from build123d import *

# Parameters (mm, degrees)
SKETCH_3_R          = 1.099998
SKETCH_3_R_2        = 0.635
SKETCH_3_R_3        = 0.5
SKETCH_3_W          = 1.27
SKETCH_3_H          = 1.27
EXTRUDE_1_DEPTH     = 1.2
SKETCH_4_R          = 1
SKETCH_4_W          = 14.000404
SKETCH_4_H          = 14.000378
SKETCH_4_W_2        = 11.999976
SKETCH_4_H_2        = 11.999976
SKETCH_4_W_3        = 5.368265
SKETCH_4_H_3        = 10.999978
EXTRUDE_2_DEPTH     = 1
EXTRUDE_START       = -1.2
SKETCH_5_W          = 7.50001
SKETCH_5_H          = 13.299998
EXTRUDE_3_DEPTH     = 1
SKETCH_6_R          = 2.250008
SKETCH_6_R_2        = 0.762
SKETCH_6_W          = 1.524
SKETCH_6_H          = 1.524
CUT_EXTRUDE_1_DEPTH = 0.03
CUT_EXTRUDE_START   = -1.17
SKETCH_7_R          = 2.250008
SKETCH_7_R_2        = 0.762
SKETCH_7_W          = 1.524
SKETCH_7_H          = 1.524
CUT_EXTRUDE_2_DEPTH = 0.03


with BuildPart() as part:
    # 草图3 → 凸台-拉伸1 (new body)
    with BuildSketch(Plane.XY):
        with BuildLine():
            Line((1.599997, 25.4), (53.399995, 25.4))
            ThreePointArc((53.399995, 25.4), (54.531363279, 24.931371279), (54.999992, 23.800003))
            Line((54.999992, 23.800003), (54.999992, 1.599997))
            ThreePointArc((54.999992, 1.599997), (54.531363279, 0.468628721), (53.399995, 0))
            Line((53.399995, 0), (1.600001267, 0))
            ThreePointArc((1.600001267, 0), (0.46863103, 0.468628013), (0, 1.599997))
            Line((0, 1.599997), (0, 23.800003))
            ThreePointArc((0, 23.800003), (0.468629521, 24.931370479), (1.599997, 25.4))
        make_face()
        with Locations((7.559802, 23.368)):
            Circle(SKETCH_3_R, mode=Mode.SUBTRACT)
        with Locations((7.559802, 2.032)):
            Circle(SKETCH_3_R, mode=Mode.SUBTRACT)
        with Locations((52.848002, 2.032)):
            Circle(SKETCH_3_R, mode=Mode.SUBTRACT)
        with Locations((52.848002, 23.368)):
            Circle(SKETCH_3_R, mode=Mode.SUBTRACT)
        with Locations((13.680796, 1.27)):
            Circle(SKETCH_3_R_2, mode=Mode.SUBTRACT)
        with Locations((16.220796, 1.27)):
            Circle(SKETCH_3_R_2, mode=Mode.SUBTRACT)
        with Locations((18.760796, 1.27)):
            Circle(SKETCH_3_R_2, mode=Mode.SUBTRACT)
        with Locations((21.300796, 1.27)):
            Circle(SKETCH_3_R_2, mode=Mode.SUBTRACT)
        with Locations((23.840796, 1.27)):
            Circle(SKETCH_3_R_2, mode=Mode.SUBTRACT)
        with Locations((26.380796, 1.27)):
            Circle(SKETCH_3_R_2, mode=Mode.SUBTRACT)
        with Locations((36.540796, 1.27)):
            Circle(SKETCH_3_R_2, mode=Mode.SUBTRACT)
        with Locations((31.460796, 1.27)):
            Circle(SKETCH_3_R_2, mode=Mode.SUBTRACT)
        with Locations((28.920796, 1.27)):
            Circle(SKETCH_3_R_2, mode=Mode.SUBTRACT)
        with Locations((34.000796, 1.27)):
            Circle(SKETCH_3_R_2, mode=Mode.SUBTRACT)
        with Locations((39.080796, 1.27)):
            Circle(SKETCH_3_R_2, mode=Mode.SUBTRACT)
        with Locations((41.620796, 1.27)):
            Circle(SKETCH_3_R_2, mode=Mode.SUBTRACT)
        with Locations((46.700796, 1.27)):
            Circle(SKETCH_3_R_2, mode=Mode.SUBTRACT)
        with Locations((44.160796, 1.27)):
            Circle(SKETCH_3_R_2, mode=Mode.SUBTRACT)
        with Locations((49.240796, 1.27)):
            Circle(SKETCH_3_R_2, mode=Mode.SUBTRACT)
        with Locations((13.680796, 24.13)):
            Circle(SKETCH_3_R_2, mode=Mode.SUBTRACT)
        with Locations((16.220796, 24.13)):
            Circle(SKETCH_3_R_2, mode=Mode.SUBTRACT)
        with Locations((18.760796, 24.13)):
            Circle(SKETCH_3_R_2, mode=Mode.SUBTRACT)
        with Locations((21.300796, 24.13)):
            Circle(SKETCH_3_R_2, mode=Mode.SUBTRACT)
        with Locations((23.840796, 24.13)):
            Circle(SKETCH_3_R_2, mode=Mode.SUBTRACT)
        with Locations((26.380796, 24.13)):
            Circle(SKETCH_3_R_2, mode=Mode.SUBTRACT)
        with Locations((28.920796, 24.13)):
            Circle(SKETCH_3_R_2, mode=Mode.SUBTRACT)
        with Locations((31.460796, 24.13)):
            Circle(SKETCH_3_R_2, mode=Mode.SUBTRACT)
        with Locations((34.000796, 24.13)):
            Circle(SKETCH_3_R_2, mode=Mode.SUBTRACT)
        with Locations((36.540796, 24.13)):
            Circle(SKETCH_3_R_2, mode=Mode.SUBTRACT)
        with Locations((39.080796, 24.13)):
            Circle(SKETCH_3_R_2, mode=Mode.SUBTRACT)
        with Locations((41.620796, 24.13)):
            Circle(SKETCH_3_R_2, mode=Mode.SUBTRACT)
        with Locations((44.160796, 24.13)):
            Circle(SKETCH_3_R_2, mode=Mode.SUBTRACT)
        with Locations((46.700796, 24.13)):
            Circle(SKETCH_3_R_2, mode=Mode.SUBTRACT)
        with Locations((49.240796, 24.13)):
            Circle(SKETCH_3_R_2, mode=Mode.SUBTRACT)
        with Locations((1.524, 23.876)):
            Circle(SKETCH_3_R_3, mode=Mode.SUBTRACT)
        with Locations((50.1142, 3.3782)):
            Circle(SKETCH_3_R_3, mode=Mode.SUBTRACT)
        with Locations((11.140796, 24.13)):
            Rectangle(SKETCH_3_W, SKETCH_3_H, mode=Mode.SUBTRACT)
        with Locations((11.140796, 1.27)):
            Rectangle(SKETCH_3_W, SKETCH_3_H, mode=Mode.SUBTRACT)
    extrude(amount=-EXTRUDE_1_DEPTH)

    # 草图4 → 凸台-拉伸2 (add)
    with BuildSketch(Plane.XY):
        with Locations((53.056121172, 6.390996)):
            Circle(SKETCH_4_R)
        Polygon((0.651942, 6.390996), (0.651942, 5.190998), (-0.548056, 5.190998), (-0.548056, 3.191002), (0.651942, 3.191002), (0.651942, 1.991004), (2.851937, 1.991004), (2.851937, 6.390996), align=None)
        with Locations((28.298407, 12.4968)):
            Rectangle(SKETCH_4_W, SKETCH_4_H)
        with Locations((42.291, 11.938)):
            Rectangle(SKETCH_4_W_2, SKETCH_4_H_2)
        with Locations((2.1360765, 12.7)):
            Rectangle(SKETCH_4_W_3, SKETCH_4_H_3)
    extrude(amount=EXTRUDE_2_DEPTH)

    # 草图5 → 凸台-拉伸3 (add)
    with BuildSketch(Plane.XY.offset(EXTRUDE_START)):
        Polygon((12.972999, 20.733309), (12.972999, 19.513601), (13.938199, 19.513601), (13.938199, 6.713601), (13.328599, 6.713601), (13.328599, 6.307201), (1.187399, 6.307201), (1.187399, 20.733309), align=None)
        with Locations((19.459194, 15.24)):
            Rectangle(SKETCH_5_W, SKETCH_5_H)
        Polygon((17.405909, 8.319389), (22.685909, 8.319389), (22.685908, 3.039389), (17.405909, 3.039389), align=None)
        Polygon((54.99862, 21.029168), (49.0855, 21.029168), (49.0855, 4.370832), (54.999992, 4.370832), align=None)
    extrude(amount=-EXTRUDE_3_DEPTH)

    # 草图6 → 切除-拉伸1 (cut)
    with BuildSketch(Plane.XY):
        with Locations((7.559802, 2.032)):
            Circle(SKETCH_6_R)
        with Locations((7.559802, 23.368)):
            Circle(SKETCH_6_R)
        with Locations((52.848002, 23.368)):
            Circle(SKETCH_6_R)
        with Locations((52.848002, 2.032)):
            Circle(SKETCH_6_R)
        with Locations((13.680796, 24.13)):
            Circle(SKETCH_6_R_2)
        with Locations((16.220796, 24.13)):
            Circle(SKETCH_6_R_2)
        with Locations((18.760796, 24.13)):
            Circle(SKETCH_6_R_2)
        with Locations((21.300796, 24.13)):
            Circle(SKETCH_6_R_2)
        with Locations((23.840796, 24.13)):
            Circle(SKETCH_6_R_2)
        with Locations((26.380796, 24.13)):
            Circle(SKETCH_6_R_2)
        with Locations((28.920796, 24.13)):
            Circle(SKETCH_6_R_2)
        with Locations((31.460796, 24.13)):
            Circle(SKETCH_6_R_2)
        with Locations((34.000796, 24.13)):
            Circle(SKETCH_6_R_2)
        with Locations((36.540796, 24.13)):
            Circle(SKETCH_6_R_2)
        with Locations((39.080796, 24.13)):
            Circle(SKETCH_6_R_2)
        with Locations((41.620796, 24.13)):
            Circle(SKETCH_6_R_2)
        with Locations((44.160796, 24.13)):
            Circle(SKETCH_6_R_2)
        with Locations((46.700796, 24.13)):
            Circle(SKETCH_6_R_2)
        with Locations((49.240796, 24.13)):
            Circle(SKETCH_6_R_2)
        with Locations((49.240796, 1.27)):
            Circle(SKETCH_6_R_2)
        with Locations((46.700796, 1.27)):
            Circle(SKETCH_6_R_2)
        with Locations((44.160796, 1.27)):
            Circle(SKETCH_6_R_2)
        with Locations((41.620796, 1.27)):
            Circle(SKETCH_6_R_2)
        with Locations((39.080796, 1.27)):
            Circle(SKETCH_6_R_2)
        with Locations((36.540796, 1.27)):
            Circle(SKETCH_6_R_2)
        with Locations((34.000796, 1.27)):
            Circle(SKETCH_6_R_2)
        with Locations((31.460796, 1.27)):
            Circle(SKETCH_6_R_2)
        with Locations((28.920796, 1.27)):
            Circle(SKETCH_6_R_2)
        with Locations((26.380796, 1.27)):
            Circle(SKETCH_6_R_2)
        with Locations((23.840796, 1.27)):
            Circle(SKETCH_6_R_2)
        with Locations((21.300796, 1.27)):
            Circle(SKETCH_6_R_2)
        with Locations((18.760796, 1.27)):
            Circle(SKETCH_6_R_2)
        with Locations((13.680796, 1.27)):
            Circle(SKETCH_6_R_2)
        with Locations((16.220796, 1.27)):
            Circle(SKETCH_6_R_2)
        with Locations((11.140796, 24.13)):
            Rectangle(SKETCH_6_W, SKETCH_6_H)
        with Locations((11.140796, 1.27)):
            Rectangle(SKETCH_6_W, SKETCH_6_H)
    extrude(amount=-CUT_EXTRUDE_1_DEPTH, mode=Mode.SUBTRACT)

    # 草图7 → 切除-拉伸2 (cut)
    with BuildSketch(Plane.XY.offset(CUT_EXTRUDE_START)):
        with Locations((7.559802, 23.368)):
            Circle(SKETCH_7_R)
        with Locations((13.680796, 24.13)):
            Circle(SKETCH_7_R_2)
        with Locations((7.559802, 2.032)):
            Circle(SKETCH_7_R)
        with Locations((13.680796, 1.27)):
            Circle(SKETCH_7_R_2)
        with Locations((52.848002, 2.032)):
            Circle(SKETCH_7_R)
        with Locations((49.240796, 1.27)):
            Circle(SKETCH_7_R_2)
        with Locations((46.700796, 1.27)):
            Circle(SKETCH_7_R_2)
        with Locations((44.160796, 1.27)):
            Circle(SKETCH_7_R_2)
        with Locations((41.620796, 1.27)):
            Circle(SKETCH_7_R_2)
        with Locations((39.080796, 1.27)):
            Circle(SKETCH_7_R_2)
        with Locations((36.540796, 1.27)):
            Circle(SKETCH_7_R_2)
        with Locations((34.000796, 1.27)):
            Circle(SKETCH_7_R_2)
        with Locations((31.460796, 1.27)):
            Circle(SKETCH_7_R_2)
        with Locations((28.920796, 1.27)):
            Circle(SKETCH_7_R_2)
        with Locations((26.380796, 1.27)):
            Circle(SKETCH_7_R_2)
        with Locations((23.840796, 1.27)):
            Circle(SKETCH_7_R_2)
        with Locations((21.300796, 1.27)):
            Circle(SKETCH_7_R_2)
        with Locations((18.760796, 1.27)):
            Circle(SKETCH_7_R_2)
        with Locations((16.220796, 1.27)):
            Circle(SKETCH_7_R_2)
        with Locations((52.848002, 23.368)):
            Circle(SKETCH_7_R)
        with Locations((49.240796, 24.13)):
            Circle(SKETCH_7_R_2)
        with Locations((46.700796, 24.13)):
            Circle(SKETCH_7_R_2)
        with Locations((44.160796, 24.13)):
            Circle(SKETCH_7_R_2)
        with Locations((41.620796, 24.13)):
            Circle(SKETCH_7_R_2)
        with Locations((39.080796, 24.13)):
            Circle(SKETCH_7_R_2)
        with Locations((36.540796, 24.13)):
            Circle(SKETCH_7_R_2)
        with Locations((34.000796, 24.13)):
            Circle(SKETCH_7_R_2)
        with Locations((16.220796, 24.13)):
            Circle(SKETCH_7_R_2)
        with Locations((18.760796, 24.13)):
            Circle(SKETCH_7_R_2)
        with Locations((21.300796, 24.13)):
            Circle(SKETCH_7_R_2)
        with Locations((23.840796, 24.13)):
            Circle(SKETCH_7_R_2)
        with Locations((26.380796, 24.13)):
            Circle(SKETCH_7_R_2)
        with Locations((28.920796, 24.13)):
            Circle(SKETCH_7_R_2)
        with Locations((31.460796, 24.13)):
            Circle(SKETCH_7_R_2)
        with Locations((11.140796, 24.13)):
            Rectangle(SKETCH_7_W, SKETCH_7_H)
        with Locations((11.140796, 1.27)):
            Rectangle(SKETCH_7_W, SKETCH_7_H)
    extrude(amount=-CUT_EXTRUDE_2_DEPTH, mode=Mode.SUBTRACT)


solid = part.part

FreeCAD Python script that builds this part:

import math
import FreeCAD as App
import Part
import Sketcher

V = App.Vector
Q = App.Units.Quantity

doc = App.newDocument("Part")
body = doc.addObject("PartDesign::Body", "Body")

# Sketch on XY plane
sketch1 = body.newObject("Sketcher::SketchObject", "Sketch")
sketch1.AttachmentSupport = (doc.getObject("XY_Plane"), [""])
sketch1.MapMode = "FlatFace"
sketch1.addGeometry([
    Part.LineSegment(V(53.399995, 25.4, 0), V(1.599997, 25.4, 0)),  # 0
    Part.ArcOfCircle(Part.Circle(V(1.600001, 23.799999, 0), V(0, 0, 1), 1.600001), math.radians(90.000153), math.radians(179.999847)),  # 1
    Part.LineSegment(V(0, 23.800003, 0), V(0, 1.599997, 0)),  # 2
    Part.ArcOfCircle(Part.Circle(V(1.600001, 1.600001, 0), V(0, 0, 1), 1.600001), math.radians(-179.999847), math.radians(-90)),  # 3
    Part.LineSegment(V(1.600001, 0, 0), V(53.399995, 0, 0)),  # 4
    Part.ArcOfCircle(Part.Circle(V(53.399993, 1.599999, 0), V(0, 0, 1), 1.599999), math.radians(-89.999945), math.radians(-0.000055)),  # 5
    Part.LineSegment(V(54.999992, 1.599997, 0), V(54.999992, 23.800003, 0)),  # 6
    Part.ArcOfCircle(Part.Circle(V(53.399993, 23.800001, 0), V(0, 0, 1), 1.599999), math.radians(0.000055), math.radians(89.999945)),  # 7
    Part.Circle(V(52.848002, 2.032, 0), V(0, 0, 1), 1.099998),  # 8
    Part.Circle(V(49.240796, 1.27, 0), V(0, 0, 1), 0.635),  # 9
    Part.Circle(V(50.1142, 3.3782, 0), V(0, 0, 1), 0.5),  # 10
    Part.Circle(V(46.700796, 1.27, 0), V(0, 0, 1), 0.635),  # 11
    Part.Circle(V(44.160796, 1.27, 0), V(0, 0, 1), 0.635),  # 12
    Part.Circle(V(41.620796, 1.27, 0), V(0, 0, 1), 0.635),  # 13
    Part.Circle(V(39.080796, 1.27, 0), V(0, 0, 1), 0.635),  # 14
    Part.Circle(V(36.540796, 1.27, 0), V(0, 0, 1), 0.635),  # 15
    Part.Circle(V(34.000796, 1.27, 0), V(0, 0, 1), 0.635),  # 16
    Part.Circle(V(31.460796, 1.27, 0), V(0, 0, 1), 0.635),  # 17
    Part.Circle(V(28.920796, 1.27, 0), V(0, 0, 1), 0.635),  # 18
    Part.Circle(V(26.380796, 1.27, 0), V(0, 0, 1), 0.635),  # 19
    Part.Circle(V(23.840796, 1.27, 0), V(0, 0, 1), 0.635),  # 20
    Part.Circle(V(21.300796, 1.27, 0), V(0, 0, 1), 0.635),  # 21
    Part.Circle(V(18.760796, 1.27, 0), V(0, 0, 1), 0.635),  # 22
    Part.Circle(V(16.220796, 1.27, 0), V(0, 0, 1), 0.635),  # 23
    Part.Circle(V(13.680796, 1.27, 0), V(0, 0, 1), 0.635),  # 24
    Part.LineSegment(V(10.505796, 0.635, 0), V(10.505796, 1.905, 0)),  # 25
    Part.LineSegment(V(10.505796, 1.905, 0), V(11.775796, 1.905, 0)),  # 26
    Part.LineSegment(V(11.775796, 1.905, 0), V(11.775796, 0.635, 0)),  # 27
    Part.LineSegment(V(11.775796, 0.635, 0), V(10.505796, 0.635, 0)),  # 28
    Part.Circle(V(7.559802, 2.032, 0), V(0, 0, 1), 1.099998),  # 29
    Part.Circle(V(52.848002, 23.368, 0), V(0, 0, 1), 1.099998),  # 30
    Part.Circle(V(49.240796, 24.13, 0), V(0, 0, 1), 0.635),  # 31
    Part.Circle(V(46.700796, 24.13, 0), V(0, 0, 1), 0.635),  # 32
    Part.Circle(V(44.160796, 24.13, 0), V(0, 0, 1), 0.635),  # 33
    Part.Circle(V(41.620796, 24.13, 0), V(0, 0, 1), 0.635),  # 34
    Part.Circle(V(39.080796, 24.13, 0), V(0, 0, 1), 0.635),  # 35
    Part.Circle(V(36.540796, 24.13, 0), V(0, 0, 1), 0.635),  # 36
    Part.Circle(V(34.000796, 24.13, 0), V(0, 0, 1), 0.635),  # 37
    Part.Circle(V(31.460796, 24.13, 0), V(0, 0, 1), 0.635),  # 38
    Part.Circle(V(28.920796, 24.13, 0), V(0, 0, 1), 0.635),  # 39
    Part.Circle(V(26.380796, 24.13, 0), V(0, 0, 1), 0.635),  # 40
    Part.Circle(V(23.840796, 24.13, 0), V(0, 0, 1), 0.635),  # 41
    Part.Circle(V(21.300796, 24.13, 0), V(0, 0, 1), 0.635),  # 42
    Part.Circle(V(18.760796, 24.13, 0), V(0, 0, 1), 0.635),  # 43
    Part.Circle(V(16.220796, 24.13, 0), V(0, 0, 1), 0.635),  # 44
    Part.Circle(V(13.680796, 24.13, 0), V(0, 0, 1), 0.635),  # 45
    Part.LineSegment(V(10.505796, 23.495, 0), V(10.505796, 24.765, 0)),  # 46
    Part.LineSegment(V(10.505796, 24.765, 0), V(11.775796, 24.765, 0)),  # 47
    Part.LineSegment(V(11.775796, 24.765, 0), V(11.775796, 23.495, 0)),  # 48
    Part.LineSegment(V(11.775796, 23.495, 0), V(10.505796, 23.495, 0)),  # 49
    Part.Circle(V(7.559802, 23.368, 0), V(0, 0, 1), 1.099998),  # 50
    Part.Circle(V(1.524, 23.876, 0), V(0, 0, 1), 0.5),  # 51
], False)
sketch1.addConstraint([
    Sketcher.Constraint("Coincident", 0, 2, 1, 1),
    Sketcher.Constraint("Coincident", 1, 2, 2, 1),
    Sketcher.Constraint("Coincident", 2, 2, 3, 1),
    Sketcher.Constraint("Tangent", 3, 2, 4, 1),
    Sketcher.Constraint("Tangent", 4, 2, 5, 1),
    Sketcher.Constraint("Tangent", 5, 2, 6, 1),
    Sketcher.Constraint("Tangent", 6, 2, 7, 1),
    Sketcher.Constraint("Tangent", 7, 2, 0, 1),
    Sketcher.Constraint("Coincident", 25, 2, 26, 1),
    Sketcher.Constraint("Coincident", 26, 2, 27, 1),
    Sketcher.Constraint("Coincident", 27, 2, 28, 1),
    Sketcher.Constraint("Coincident", 28, 2, 25, 1),
    Sketcher.Constraint("Coincident", 46, 2, 47, 1),
    Sketcher.Constraint("Coincident", 47, 2, 48, 1),
    Sketcher.Constraint("Coincident", 48, 2, 49, 1),
    Sketcher.Constraint("Coincident", 49, 2, 46, 1),
    Sketcher.Constraint("Horizontal", 0),
    Sketcher.Constraint("Vertical", 2),
    Sketcher.Constraint("Horizontal", 4),
    Sketcher.Constraint("Vertical", 6),
    Sketcher.Constraint("Vertical", 25),
    Sketcher.Constraint("Horizontal", 26),
    Sketcher.Constraint("Vertical", 27),
    Sketcher.Constraint("Horizontal", 28),
    Sketcher.Constraint("Vertical", 46),
    Sketcher.Constraint("Horizontal", 47),
    Sketcher.Constraint("Vertical", 48),
    Sketcher.Constraint("Horizontal", 49),
    Sketcher.Constraint("Equal", 1, 3),
    Sketcher.Constraint("Equal", 5, 7),
    Sketcher.Constraint("Equal", 9, 11),
    Sketcher.Constraint("Equal", 11, 12),
    Sketcher.Constraint("Equal", 12, 13),
    Sketcher.Constraint("Equal", 13, 14),
    Sketcher.Constraint("Equal", 14, 15),
    Sketcher.Constraint("Equal", 15, 16),
    Sketcher.Constraint("Equal", 16, 17),
    Sketcher.Constraint("Equal", 17, 18),
    Sketcher.Constraint("Equal", 18, 19),
    Sketcher.Constraint("Equal", 19, 20),
    Sketcher.Constraint("Equal", 20, 21),
    Sketcher.Constraint("Equal", 21, 22),
    Sketcher.Constraint("Equal", 22, 23),
    Sketcher.Constraint("Equal", 23, 24),
    Sketcher.Constraint("Equal", 8, 29),
    Sketcher.Constraint("Equal", 29, 30),
    Sketcher.Constraint("Equal", 24, 31),
    Sketcher.Constraint("Equal", 31, 32),
    Sketcher.Constraint("Equal", 32, 33),
    Sketcher.Constraint("Equal", 33, 34),
    Sketcher.Constraint("Equal", 34, 35),
    Sketcher.Constraint("Equal", 35, 36),
    Sketcher.Constraint("Equal", 36, 37),
    Sketcher.Constraint("Equal", 37, 38),
    Sketcher.Constraint("Equal", 38, 39),
    Sketcher.Constraint("Equal", 39, 40),
    Sketcher.Constraint("Equal", 40, 41),
    Sketcher.Constraint("Equal", 41, 42),
    Sketcher.Constraint("Equal", 42, 43),
    Sketcher.Constraint("Equal", 43, 44),
    Sketcher.Constraint("Equal", 44, 45),
    Sketcher.Constraint("Equal", 30, 50),
    Sketcher.Constraint("Equal", 10, 51),
    Sketcher.Constraint("PointOnObject", 1, 2, -2),
    Sketcher.Constraint("PointOnObject", 3, 2, -1),
    Sketcher.Constraint("Horizontal", 9, 3, 11, 3),
    Sketcher.Constraint("Horizontal", 11, 3, 12, 3),
    Sketcher.Constraint("Horizontal", 12, 3, 13, 3),
    Sketcher.Constraint("Horizontal", 13, 3, 14, 3),
    Sketcher.Constraint("Horizontal", 14, 3, 15, 3),
    Sketcher.Constraint("Horizontal", 15, 3, 16, 3),
    Sketcher.Constraint("Horizontal", 16, 3, 17, 3),
    Sketcher.Constraint("Horizontal", 17, 3, 18, 3),
    Sketcher.Constraint("Horizontal", 18, 3, 19, 3),
    Sketcher.Constraint("Horizontal", 19, 3, 20, 3),
    Sketcher.Constraint("Horizontal", 20, 3, 21, 3),
    Sketcher.Constraint("Horizontal", 21, 3, 22, 3),
    Sketcher.Constraint("Horizontal", 22, 3, 23, 3),
    Sketcher.Constraint("Horizontal", 23, 3, 24, 3),
    Sketcher.Constraint("Horizontal", 8, 3, 29, 3),
    Sketcher.Constraint("Horizontal", 31, 3, 32, 3),
    Sketcher.Constraint("Horizontal", 32, 3, 33, 3),
    Sketcher.Constraint("Horizontal", 33, 3, 34, 3),
    Sketcher.Constraint("Horizontal", 34, 3, 35, 3),
    Sketcher.Constraint("Horizontal", 35, 3, 36, 3),
    Sketcher.Constraint("Horizontal", 36, 3, 37, 3),
    Sketcher.Constraint("Horizontal", 37, 3, 38, 3),
    Sketcher.Constraint("Horizontal", 38, 3, 39, 3),
    Sketcher.Constraint("Horizontal", 39, 3, 40, 3),
    Sketcher.Constraint("Horizontal", 40, 3, 41, 3),
    Sketcher.Constraint("Horizontal", 41, 3, 42, 3),
    Sketcher.Constraint("Horizontal", 42, 3, 43, 3),
    Sketcher.Constraint("Horizontal", 43, 3, 44, 3),
    Sketcher.Constraint("Horizontal", 44, 3, 45, 3),
    Sketcher.Constraint("Horizontal", 30, 3, 50, 3),
    Sketcher.Constraint("Horizontal", 7, 3, 1, 2),
    Sketcher.Constraint("Horizontal", 5, 3, 2, 2),
    Sketcher.Constraint("Vertical", 8, 3, 30, 3),
    Sketcher.Constraint("Vertical", 9, 3, 31, 3),
    Sketcher.Constraint("Vertical", 11, 3, 32, 3),
    Sketcher.Constraint("Vertical", 12, 3, 33, 3),
    Sketcher.Constraint("Vertical", 13, 3, 34, 3),
    Sketcher.Constraint("Vertical", 14, 3, 35, 3),
    Sketcher.Constraint("Vertical", 15, 3, 36, 3),
    Sketcher.Constraint("Vertical", 16, 3, 37, 3),
    Sketcher.Constraint("Vertical", 17, 3, 38, 3),
    Sketcher.Constraint("Vertical", 18, 3, 39, 3),
    Sketcher.Constraint("Vertical", 19, 3, 40, 3),
    Sketcher.Constraint("Vertical", 20, 3, 41, 3),
    Sketcher.Constraint("Vertical", 21, 3, 42, 3),
    Sketcher.Constraint("Vertical", 22, 3, 43, 3),
    Sketcher.Constraint("Vertical", 23, 3, 44, 3),
    Sketcher.Constraint("Vertical", 24, 3, 45, 3),
    Sketcher.Constraint("Vertical", 29, 3, 50, 3),
    Sketcher.Constraint("Vertical", 28, 2, 46, 2),
    Sketcher.Constraint("Vertical", 27, 2, 47, 2),
    Sketcher.Constraint("Equal", 49, 25),
    Sketcher.Constraint("Equal", 27, 46),
    Sketcher.Constraint("Diameter", 9, Q("0.05 in")),
    Sketcher.Constraint("DistanceY", -1, 1, 0, 2, Q("1 in")),
    Sketcher.Constraint("DistanceX", 26, 1, 26, 2, Q("0.05 in")),
    Sketcher.Constraint("DistanceX", 11, 3, 9, 3, Q("0.1 in")),
    Sketcher.Constraint("DistanceX", 12, 3, 11, 3, Q("0.1 in")),
    Sketcher.Constraint("DistanceX", 13, 3, 12, 3, Q("0.1 in")),
    Sketcher.Constraint("DistanceX", 14, 3, 13, 3, Q("0.1 in")),
    Sketcher.Constraint("DistanceX", 15, 3, 14, 3, Q("0.1 in")),
    Sketcher.Constraint("DistanceX", 16, 3, 15, 3, Q("0.1 in")),
    Sketcher.Constraint("DistanceX", 17, 3, 16, 3, Q("0.1 in")),
    Sketcher.Constraint("DistanceX", 18, 3, 17, 3, Q("0.1 in")),
    Sketcher.Constraint("DistanceX", 19, 3, 18, 3, Q("0.1 in")),
    Sketcher.Constraint("DistanceX", 20, 3, 19, 3, Q("0.1 in")),
    Sketcher.Constraint("DistanceX", 21, 3, 20, 3, Q("0.1 in")),
    Sketcher.Constraint("DistanceX", 22, 3, 21, 3, Q("0.1 in")),
    Sketcher.Constraint("DistanceX", 23, 3, 22, 3, Q("0.1 in")),
    Sketcher.Constraint("DistanceX", 24, 3, 23, 3, Q("0.1 in")),
    Sketcher.Constraint("DistanceY", 9, 3, 31, 3, Q("0.9 in")),
    Sketcher.Constraint("Diameter", 10, 1.0),
    Sketcher.Constraint("DistanceY", -1, 1, 8, 3, Q("0.08 in")),
    Sketcher.Constraint("DistanceY", -1, 1, 9, 3, Q("0.05 in")),
    Sketcher.Constraint("DistanceY", -1, 1, 30, 3, Q("0.92 in")),
    Sketcher.Constraint("DistanceX", -1, 1, 51, 3, Q("0.06 in")),
    Sketcher.Constraint("DistanceY", -1, 1, 51, 3, Q("0.94 in")),
    Sketcher.Constraint("Radius", 1, 1.600001),
    Sketcher.Constraint("Radius", 5, 1.599999),
    Sketcher.Constraint("DistanceX", -1, 1, 10, 3, Q("1.973 in")),
    Sketcher.Constraint("DistanceY", -1, 1, 10, 3, Q("0.133 in")),
    Sketcher.Constraint("DistanceY", -1, 1, 25, 2, Q("0.075 in")),
    Sketcher.Constraint("DistanceY", -1, 1, 46, 2, Q("0.975 in")),
    Sketcher.Constraint("DistanceX", 25, 2, 24, 3, Q("0.125 in")),
    Sketcher.Constraint("Diameter", 8, 2.199996),
    Sketcher.Constraint("DistanceX", 3, 3, 8, 3, 51.248001),
    Sketcher.Constraint("DistanceX", 3, 3, 29, 3, 5.959801),
    Sketcher.Constraint("DistanceX", 0, 2, 45, 3, 12.080799),
    Sketcher.Constraint("DistanceX", 9, 3, 4, 2, 4.159199),
    Sketcher.Constraint("DistanceX", 4, 1, 4, 2, 51.799994),
])
pad1 = body.newObject("PartDesign::Pad", "Pad")
pad1.Profile = sketch1
pad1.Length = 1.2
pad1.Reversed = True

# Sketch on XY plane
sketch2 = body.newObject("Sketcher::SketchObject", "Sketch001")
sketch2.AttachmentSupport = (doc.getObject("XY_Plane"), [""])
sketch2.MapMode = "FlatFace"
sketch2.addGeometry([
    Part.Circle(V(53.056121, 6.390996, 0), V(0, 0, 1), 1),  # 0
    Part.LineSegment(V(0.651942, 6.390996, 0), V(0.651942, 5.190998, 0)),  # 1
    Part.LineSegment(V(0.651942, 5.190998, 0), V(-0.548056, 5.190998, 0)),  # 2
    Part.LineSegment(V(-0.548056, 5.190998, 0), V(-0.548056, 3.191002, 0)),  # 3
    Part.LineSegment(V(-0.548056, 3.191002, 0), V(0.651942, 3.191002, 0)),  # 4
    Part.LineSegment(V(0.651942, 3.191002, 0), V(0.651942, 1.991004, 0)),  # 5
    Part.LineSegment(V(0.651942, 1.991004, 0), V(2.851937, 1.991004, 0)),  # 6
    Part.LineSegment(V(2.851937, 1.991004, 0), V(2.851937, 6.390996, 0)),  # 7
    Part.LineSegment(V(2.851937, 6.390996, 0), V(0.651942, 6.390996, 0)),  # 8
    Part.LineSegment(V(21.298205, 19.496989, 0), V(21.298205, 5.496611, 0)),  # 9
    Part.LineSegment(V(21.298205, 5.496611, 0), V(35.298609, 5.496611, 0)),  # 10
    Part.LineSegment(V(35.298609, 5.496611, 0), V(35.298609, 19.496989, 0)),  # 11
    Part.LineSegment(V(35.298609, 19.496989, 0), V(21.298205, 19.496989, 0)),  # 12
    Part.LineSegment(V(36.291012, 17.937988, 0), V(36.291012, 5.938012, 0)),  # 13
    Part.LineSegment(V(36.291012, 5.938012, 0), V(48.290988, 5.938012, 0)),  # 14
    Part.LineSegment(V(48.290988, 5.938012, 0), V(48.290988, 17.937988, 0)),  # 15
    Part.LineSegment(V(48.290988, 17.937988, 0), V(36.291012, 17.937988, 0)),  # 16
    Part.LineSegment(V(-0.548056, 18.199989, 0), V(-0.548056, 7.200011, 0)),  # 17
    Part.LineSegment(V(-0.548056, 7.200011, 0), V(4.820209, 7.200011, 0)),  # 18
    Part.LineSegment(V(4.820209, 7.200011, 0), V(4.820209, 18.199989, 0)),  # 19
    Part.LineSegment(V(4.820209, 18.199989, 0), V(-0.548056, 18.199989, 0)),  # 20
], False)
sketch2.addConstraint([
    Sketcher.Constraint("Coincident", 1, 2, 2, 1),
    Sketcher.Constraint("Coincident", 2, 2, 3, 1),
    Sketcher.Constraint("Coincident", 3, 2, 4, 1),
    Sketcher.Constraint("Coincident", 4, 2, 5, 1),
    Sketcher.Constraint("Coincident", 5, 2, 6, 1),
    Sketcher.Constraint("Coincident", 6, 2, 7, 1),
    Sketcher.Constraint("Coincident", 7, 2, 8, 1),
    Sketcher.Constraint("Coincident", 8, 2, 1, 1),
    Sketcher.Constraint("Coincident", 9, 2, 10, 1),
    Sketcher.Constraint("Coincident", 10, 2, 11, 1),
    Sketcher.Constraint("Coincident", 11, 2, 12, 1),
    Sketcher.Constraint("Coincident", 12, 2, 9, 1),
    Sketcher.Constraint("Coincident", 13, 2, 14, 1),
    Sketcher.Constraint("Coincident", 14, 2, 15, 1),
    Sketcher.Constraint("Coincident", 15, 2, 16, 1),
    Sketcher.Constraint("Coincident", 16, 2, 13, 1),
    Sketcher.Constraint("Coincident", 17, 2, 18, 1),
    Sketcher.Constraint("Coincident", 18, 2, 19, 1),
    Sketcher.Constraint("Coincident", 19, 2, 20, 1),
    Sketcher.Constraint("Coincident", 20, 2, 17, 1),
    Sketcher.Constraint("Vertical", 1),
    Sketcher.Constraint("Horizontal", 2),
    Sketcher.Constraint("Vertical", 3),
    Sketcher.Constraint("Horizontal", 4),
    Sketcher.Constraint("Vertical", 5),
    Sketcher.Constraint("Horizontal", 6),
    Sketcher.Constraint("Vertical", 7),
    Sketcher.Constraint("Horizontal", 8),
    Sketcher.Constraint("Vertical", 9),
    Sketcher.Constraint("Horizontal", 10),
    Sketcher.Constraint("Vertical", 11),
    Sketcher.Constraint("Horizontal", 12),
    Sketcher.Constraint("Vertical", 13),
    Sketcher.Constraint("Horizontal", 14),
    Sketcher.Constraint("Vertical", 15),
    Sketcher.Constraint("Horizontal", 16),
    Sketcher.Constraint("Vertical", 17),
    Sketcher.Constraint("Horizontal", 18),
    Sketcher.Constraint("Vertical", 19),
    Sketcher.Constraint("Horizontal", 20),
    Sketcher.Constraint("Horizontal", 0, 3, 7, 2),
    Sketcher.Constraint("Vertical", 1, 2, 4, 2),
    Sketcher.Constraint("Vertical", 3, 2, 17, 2),
    Sketcher.Constraint("Equal", 4, 1),
    Sketcher.Constraint("Equal", 1, 5),
    Sketcher.Constraint("Equal", 16, 13),
    Sketcher.Constraint("Diameter", 0, 2.0),
    Sketcher.Constraint("DistanceY", 1, 2, 1, 1, 1.199998),
    Sketcher.Constraint("DistanceY", 10, 2, 13, 2, 0.441401),
    Sketcher.Constraint("DistanceY", 15, 2, 11, 2, 1.559001),
    Sketcher.Constraint("DistanceX", 6, 1, 6, 2, 2.199995),
    Sketcher.Constraint("DistanceX", 10, 1, 10, 2, 14.000404),
    Sketcher.Constraint("DistanceX", 14, 1, 14, 2, 11.999976),
    Sketcher.Constraint("DistanceX", 18, 1, 18, 2, 5.368265),
    Sketcher.Constraint("DistanceY", 3, 2, 3, 1, 1.999996),
    Sketcher.Constraint("DistanceY", 17, 2, 17, 1, 10.999978),
    Sketcher.Constraint("DistanceX", -1, 1, 0, 3, 53.056121),
    Sketcher.Constraint("DistanceY", -1, 1, 9, 2, 5.496611),
    Sketcher.Constraint("DistanceX", -1, 1, 10, 2, 35.298609),
    Sketcher.Constraint("DistanceY", -1, 1, 17, 2, 7.200011),
    Sketcher.Constraint("DistanceX", -1, 1, 18, 2, 4.820209),
    Sketcher.Constraint("DistanceY", 4, 2, 9, 2, 2.305609),
    Sketcher.Constraint("DistanceX", 13, 2, 0, 3, 16.765109),
])
pad2 = body.newObject("PartDesign::Pad", "Pad001")
pad2.Profile = sketch2
pad2.Length = 1

# Sketch on XY plane
sketch3 = body.newObject("Sketcher::SketchObject", "Sketch002")
sketch3.AttachmentSupport = (doc.getObject("XY_Plane"), [""])
sketch3.MapMode = "FlatFace"
sketch3.AttachmentOffset = App.Placement(V(0, 0, -1.2), App.Rotation())
sketch3.addGeometry([
    Part.LineSegment(V(12.972999, 19.513601, 0), V(12.972999, 20.733309, 0)),  # 0
    Part.LineSegment(V(12.972999, 20.733309, 0), V(1.187399, 20.733309, 0)),  # 1
    Part.LineSegment(V(1.187399, 20.733309, 0), V(1.187399, 6.307201, 0)),  # 2
    Part.LineSegment(V(1.187399, 6.307201, 0), V(13.328599, 6.307201, 0)),  # 3
    Part.LineSegment(V(13.328599, 6.307201, 0), V(13.328599, 6.713601, 0)),  # 4
    Part.LineSegment(V(13.328599, 6.713601, 0), V(13.938199, 6.713601, 0)),  # 5
    Part.LineSegment(V(13.938199, 6.713601, 0), V(13.938199, 19.513601, 0)),  # 6
    Part.LineSegment(V(13.938199, 19.513601, 0), V(12.972999, 19.513601, 0)),  # 7
    Part.LineSegment(V(15.709189, 21.889999, 0), V(15.709189, 8.590001, 0)),  # 8
    Part.LineSegment(V(15.709189, 8.590001, 0), V(23.209199, 8.590001, 0)),  # 9
    Part.LineSegment(V(23.209199, 8.590001, 0), V(23.209199, 21.889999, 0)),  # 10
    Part.LineSegment(V(23.209199, 21.889999, 0), V(15.709189, 21.889999, 0)),  # 11
    Part.LineSegment(V(22.685909, 8.319389, 0), V(17.405909, 8.319389, 0)),  # 12
    Part.LineSegment(V(17.405909, 8.319389, 0), V(17.405909, 3.039389, 0)),  # 13
    Part.LineSegment(V(17.405909, 3.039389, 0), V(22.685908, 3.039389, 0)),  # 14
    Part.LineSegment(V(22.685908, 3.039389, 0), V(22.685909, 8.319389, 0)),  # 15
    Part.LineSegment(V(54.99862, 21.029168, 0), V(49.0855, 21.029168, 0)),  # 16
    Part.LineSegment(V(49.0855, 21.029168, 0), V(49.0855, 4.370832, 0)),  # 17
    Part.LineSegment(V(49.0855, 4.370832, 0), V(54.999992, 4.370832, 0)),  # 18
    Part.LineSegment(V(54.999992, 4.370832, 0), V(54.99862, 21.029168, 0)),  # 19
], False)
sketch3.addConstraint([
    Sketcher.Constraint("Coincident", 0, 2, 1, 1),
    Sketcher.Constraint("Coincident", 1, 2, 2, 1),
    Sketcher.Constraint("Coincident", 2, 2, 3, 1),
    Sketcher.Constraint("Coincident", 3, 2, 4, 1),
    Sketcher.Constraint("Coincident", 4, 2, 5, 1),
    Sketcher.Constraint("Coincident", 5, 2, 6, 1),
    Sketcher.Constraint("Coincident", 6, 2, 7, 1),
    Sketcher.Constraint("Coincident", 7, 2, 0, 1),
    Sketcher.Constraint("Coincident", 8, 2, 9, 1),
    Sketcher.Constraint("Coincident", 9, 2, 10, 1),
    Sketcher.Constraint("Coincident", 10, 2, 11, 1),
    Sketcher.Constraint("Coincident", 11, 2, 8, 1),
    Sketcher.Constraint("Coincident", 12, 2, 13, 1),
    Sketcher.Constraint("Coincident", 13, 2, 14, 1),
    Sketcher.Constraint("Coincident", 14, 2, 15, 1),
    Sketcher.Constraint("Coincident", 15, 2, 12, 1),
    Sketcher.Constraint("Coincident", 16, 2, 17, 1),
    Sketcher.Constraint("Coincident", 17, 2, 18, 1),
    Sketcher.Constraint("Coincident", 18, 2, 19, 1),
    Sketcher.Constraint("Coincident", 19, 2, 16, 1),
    Sketcher.Constraint("Vertical", 0),
    Sketcher.Constraint("Horizontal", 1),
    Sketcher.Constraint("Vertical", 2),
    Sketcher.Constraint("Horizontal", 3),
    Sketcher.Constraint("Vertical", 4),
    Sketcher.Constraint("Horizontal", 5),
    Sketcher.Constraint("Vertical", 6),
    Sketcher.Constraint("Horizontal", 7),
    Sketcher.Constraint("Vertical", 8),
    Sketcher.Constraint("Horizontal", 9),
    Sketcher.Constraint("Vertical", 10),
    Sketcher.Constraint("Horizontal", 11),
    Sketcher.Constraint("Horizontal", 12),
    Sketcher.Constraint("Vertical", 13),
    Sketcher.Constraint("Horizontal", 14),
    Sketcher.Constraint("Vertical", 15),
    Sketcher.Constraint("Horizontal", 16),
    Sketcher.Constraint("Vertical", 17),
    Sketcher.Constraint("Horizontal", 18),
    Sketcher.Constraint("Equal", 14, 13),
    Sketcher.Constraint("DistanceX", 1, 2, 1, 1, Q("0.464 in")),
    Sketcher.Constraint("DistanceX", 3, 1, 3, 2, Q("0.478 in")),
    Sketcher.Constraint("DistanceX", 5, 1, 5, 2, Q("0.024 in")),
    Sketcher.Constraint("DistanceY", 4, 1, 4, 2, Q("0.016 in")),
    Sketcher.Constraint("DistanceX", 16, 2, 16, 1, Q("0.2328 in")),
    Sketcher.Constraint("DistanceX", 5, 2, 9, 2, Q("0.365 in")),
    Sketcher.Constraint("DistanceX", 12, 2, 12, 1, 5.28),
    Sketcher.Constraint("DistanceY", 6, 1, 6, 2, 12.8),
    Sketcher.Constraint("DistanceX", -1, 1, 16, 2, Q("1.9325 in")),
    Sketcher.Constraint("DistanceX", 8, 2, 12, 2, Q("0.0668 in")),
    Sketcher.Constraint("DistanceX", 9, 1, 9, 2, 7.50001),
    Sketcher.Constraint("DistanceX", 18, 1, 18, 2, 5.914492),
    Sketcher.Constraint("DistanceX", -1, 1, 0, 2, 12.972999),
    Sketcher.Constraint("DistanceY", -1, 1, 2, 2, 6.307201),
    Sketcher.Constraint("DistanceY", -1, 1, 8, 2, 8.590001),
    Sketcher.Constraint("DistanceY", -1, 1, 10, 2, 21.889999),
    Sketcher.Constraint("DistanceY", 0, 1, 0, 2, 1.219708),
    Sketcher.Constraint("DistanceY", 17, 2, 17, 1, 16.658336),
    Sketcher.Constraint("DistanceY", -1, 1, 12, 2, 8.319389),
    Sketcher.Constraint("DistanceY", 16, 2, 10, 2, 0.860831),
])
pad3 = body.newObject("PartDesign::Pad", "Pad002")
pad3.Profile = sketch3
pad3.Length = 1
pad3.Reversed = True

# Sketch on XY plane
sketch4 = body.newObject("Sketcher::SketchObject", "Sketch003")
sketch4.AttachmentSupport = (doc.getObject("XY_Plane"), [""])
sketch4.MapMode = "FlatFace"
sketch4.addGeometry([
    Part.Circle(V(7.559802, 2.032, 0), V(0, 0, 1), 2.250008),  # 0
    Part.Circle(V(7.559802, 23.368, 0), V(0, 0, 1), 2.250008),  # 1
    Part.Circle(V(52.848002, 23.368, 0), V(0, 0, 1), 2.250008),  # 2
    Part.Circle(V(52.848002, 2.032, 0), V(0, 0, 1), 2.250008),  # 3
    Part.Circle(V(13.680796, 24.13, 0), V(0, 0, 1), 0.762),  # 4
    Part.Circle(V(16.220796, 24.13, 0), V(0, 0, 1), 0.762),  # 5
    Part.Circle(V(18.760796, 24.13, 0), V(0, 0, 1), 0.762),  # 6
    Part.Circle(V(21.300796, 24.13, 0), V(0, 0, 1), 0.762),  # 7
    Part.Circle(V(23.840796, 24.13, 0), V(0, 0, 1), 0.762),  # 8
    Part.Circle(V(26.380796, 24.13, 0), V(0, 0, 1), 0.762),  # 9
    Part.Circle(V(28.920796, 24.13, 0), V(0, 0, 1), 0.762),  # 10
    Part.Circle(V(31.460796, 24.13, 0), V(0, 0, 1), 0.762),  # 11
    Part.Circle(V(34.000796, 24.13, 0), V(0, 0, 1), 0.762),  # 12
    Part.Circle(V(36.540796, 24.13, 0), V(0, 0, 1), 0.762),  # 13
    Part.Circle(V(39.080796, 24.13, 0), V(0, 0, 1), 0.762),  # 14
    Part.Circle(V(41.620796, 24.13, 0), V(0, 0, 1), 0.762),  # 15
    Part.Circle(V(44.160796, 24.13, 0), V(0, 0, 1), 0.762),  # 16
    Part.Circle(V(46.700796, 24.13, 0), V(0, 0, 1), 0.762),  # 17
    Part.Circle(V(49.240796, 24.13, 0), V(0, 0, 1), 0.762),  # 18
    Part.Circle(V(49.240796, 1.27, 0), V(0, 0, 1), 0.762),  # 19
    Part.Circle(V(46.700796, 1.27, 0), V(0, 0, 1), 0.762),  # 20
    Part.Circle(V(44.160796, 1.27, 0), V(0, 0, 1), 0.762),  # 21
    Part.Circle(V(41.620796, 1.27, 0), V(0, 0, 1), 0.762),  # 22
    Part.Circle(V(39.080796, 1.27, 0), V(0, 0, 1), 0.762),  # 23
    Part.Circle(V(36.540796, 1.27, 0), V(0, 0, 1), 0.762),  # 24
    Part.Circle(V(34.000796, 1.27, 0), V(0, 0, 1), 0.762),  # 25
    Part.Circle(V(31.460796, 1.27, 0), V(0, 0, 1), 0.762),  # 26
    Part.Circle(V(28.920796, 1.27, 0), V(0, 0, 1), 0.762),  # 27
    Part.Circle(V(26.380796, 1.27, 0), V(0, 0, 1), 0.762),  # 28
    Part.Circle(V(23.840796, 1.27, 0), V(0, 0, 1), 0.762),  # 29
    Part.Circle(V(21.300796, 1.27, 0), V(0, 0, 1), 0.762),  # 30
    Part.Circle(V(18.760796, 1.27, 0), V(0, 0, 1), 0.762),  # 31
    Part.Circle(V(13.680796, 1.27, 0), V(0, 0, 1), 0.762),  # 32
    Part.Circle(V(16.220796, 1.27, 0), V(0, 0, 1), 0.762),  # 33
    Part.LineSegment(V(10.378796, 24.892, 0), V(10.378796, 23.368, 0)),  # 34
    Part.LineSegment(V(10.378796, 23.368, 0), V(11.902796, 23.368, 0)),  # 35
    Part.LineSegment(V(11.902796, 23.368, 0), V(11.902796, 24.892, 0)),  # 36
    Part.LineSegment(V(11.902796, 24.892, 0), V(10.378796, 24.892, 0)),  # 37
    Part.LineSegment(V(10.378796, 2.032, 0), V(10.378796, 0.508, 0)),  # 38
    Part.LineSegment(V(10.378796, 0.508, 0), V(11.902796, 0.508, 0)),  # 39
    Part.LineSegment(V(11.902796, 0.508, 0), V(11.902796, 2.032, 0)),  # 40
    Part.LineSegment(V(11.902796, 2.032, 0), V(10.378796, 2.032, 0)),  # 41
], False)
sketch4.addConstraint([
    Sketcher.Constraint("Coincident", 34, 2, 35, 1),
    Sketcher.Constraint("Coincident", 35, 2, 36, 1),
    Sketcher.Constraint("Coincident", 36, 2, 37, 1),
    Sketcher.Constraint("Coincident", 37, 2, 34, 1),
    Sketcher.Constraint("Coincident", 38, 2, 39, 1),
    Sketcher.Constraint("Coincident", 39, 2, 40, 1),
    Sketcher.Constraint("Coincident", 40, 2, 41, 1),
    Sketcher.Constraint("Coincident", 41, 2, 38, 1),
    Sketcher.Constraint("Vertical", 34),
    Sketcher.Constraint("Horizontal", 35),
    Sketcher.Constraint("Vertical", 36),
    Sketcher.Constraint("Horizontal", 37),
    Sketcher.Constraint("Vertical", 38),
    Sketcher.Constraint("Horizontal", 39),
    Sketcher.Constraint("Vertical", 40),
    Sketcher.Constraint("Horizontal", 41),
    Sketcher.Constraint("Equal", 0, 1),
    Sketcher.Constraint("Equal", 1, 2),
    Sketcher.Constraint("Equal", 2, 3),
    Sketcher.Constraint("Equal", 4, 5),
    Sketcher.Constraint("Equal", 5, 6),
    Sketcher.Constraint("Equal", 6, 7),
    Sketcher.Constraint("Equal", 7, 8),
    Sketcher.Constraint("Equal", 8, 9),
    Sketcher.Constraint("Equal", 9, 10),
    Sketcher.Constraint("Equal", 10, 11),
    Sketcher.Constraint("Equal", 11, 12),
    Sketcher.Constraint("Equal", 12, 13),
    Sketcher.Constraint("Equal", 13, 14),
    Sketcher.Constraint("Equal", 14, 15),
    Sketcher.Constraint("Equal", 15, 16),
    Sketcher.Constraint("Equal", 16, 17),
    Sketcher.Constraint("Equal", 17, 18),
    Sketcher.Constraint("Equal", 18, 19),
    Sketcher.Constraint("Equal", 19, 20),
    Sketcher.Constraint("Equal", 20, 21),
    Sketcher.Constraint("Equal", 21, 22),
    Sketcher.Constraint("Equal", 22, 23),
    Sketcher.Constraint("Equal", 23, 24),
    Sketcher.Constraint("Equal", 24, 25),
    Sketcher.Constraint("Equal", 25, 26),
    Sketcher.Constraint("Equal", 26, 27),
    Sketcher.Constraint("Equal", 27, 28),
    Sketcher.Constraint("Equal", 28, 29),
    Sketcher.Constraint("Equal", 29, 30),
    Sketcher.Constraint("Equal", 30, 31),
    Sketcher.Constraint("Equal", 31, 32),
    Sketcher.Constraint("Equal", 32, 33),
    Sketcher.Constraint("Horizontal", 1, 3, 2, 3),
    Sketcher.Constraint("Horizontal", 0, 3, 3, 3),
    Sketcher.Constraint("Horizontal", 4, 3, 5, 3),
    Sketcher.Constraint("Horizontal", 5, 3, 6, 3),
    Sketcher.Constraint("Horizontal", 6, 3, 7, 3),
    Sketcher.Constraint("Horizontal", 7, 3, 8, 3),
    Sketcher.Constraint("Horizontal", 8, 3, 9, 3),
    Sketcher.Constraint("Horizontal", 9, 3, 10, 3),
    Sketcher.Constraint("Horizontal", 10, 3, 11, 3),
    Sketcher.Constraint("Horizontal", 11, 3, 12, 3),
    Sketcher.Constraint("Horizontal", 12, 3, 13, 3),
    Sketcher.Constraint("Horizontal", 13, 3, 14, 3),
    Sketcher.Constraint("Horizontal", 14, 3, 15, 3),
    Sketcher.Constraint("Horizontal", 15, 3, 16, 3),
    Sketcher.Constraint("Horizontal", 16, 3, 17, 3),
    Sketcher.Constraint("Horizontal", 17, 3, 18, 3),
    Sketcher.Constraint("Horizontal", 19, 3, 20, 3),
    Sketcher.Constraint("Horizontal", 20, 3, 21, 3),
    Sketcher.Constraint("Horizontal", 21, 3, 22, 3),
    Sketcher.Constraint("Horizontal", 22, 3, 23, 3),
    Sketcher.Constraint("Horizontal", 23, 3, 24, 3),
    Sketcher.Constraint("Horizontal", 24, 3, 25, 3),
    Sketcher.Constraint("Horizontal", 25, 3, 26, 3),
    Sketcher.Constraint("Horizontal", 26, 3, 27, 3),
    Sketcher.Constraint("Horizontal", 27, 3, 28, 3),
    Sketcher.Constraint("Horizontal", 28, 3, 29, 3),
    Sketcher.Constraint("Horizontal", 29, 3, 30, 3),
    Sketcher.Constraint("Horizontal", 30, 3, 31, 3),
    Sketcher.Constraint("Horizontal", 31, 3, 32, 3),
    Sketcher.Constraint("Horizontal", 32, 3, 33, 3),
    Sketcher.Constraint("Horizontal", 2, 3, 34, 2),
    Sketcher.Constraint("Horizontal", 3, 3, 40, 2),
    Sketcher.Constraint("Vertical", 0, 3, 1, 3),
    Sketcher.Constraint("Vertical", 2, 3, 3, 3),
    Sketcher.Constraint("Vertical", 18, 3, 19, 3),
    Sketcher.Constraint("Vertical", 17, 3, 20, 3),
    Sketcher.Constraint("Vertical", 16, 3, 21, 3),
    Sketcher.Constraint("Vertical", 15, 3, 22, 3),
    Sketcher.Constraint("Vertical", 14, 3, 23, 3),
    Sketcher.Constraint("Vertical", 13, 3, 24, 3),
    Sketcher.Constraint("Vertical", 12, 3, 25, 3),
    Sketcher.Constraint("Vertical", 11, 3, 26, 3),
    Sketcher.Constraint("Vertical", 10, 3, 27, 3),
    Sketcher.Constraint("Vertical", 9, 3, 28, 3),
    Sketcher.Constraint("Vertical", 8, 3, 29, 3),
    Sketcher.Constraint("Vertical", 7, 3, 30, 3),
    Sketcher.Constraint("Vertical", 6, 3, 31, 3),
    Sketcher.Constraint("Vertical", 4, 3, 32, 3),
    Sketcher.Constraint("Vertical", 5, 3, 33, 3),
    Sketcher.Constraint("Vertical", 37, 2, 38, 2),
    Sketcher.Constraint("Vertical", 36, 2, 39, 2),
    Sketcher.Constraint("Equal", 41, 34),
    Sketcher.Constraint("Equal", 36, 38),
    Sketcher.Constraint("Diameter", 4, Q("0.06 in")),
    Sketcher.Constraint("DistanceX", 35, 1, 35, 2, Q("0.06 in")),
    Sketcher.Constraint("DistanceX", 4, 3, 5, 3, Q("0.1 in")),
    Sketcher.Constraint("DistanceX", 5, 3, 6, 3, Q("0.1 in")),
    Sketcher.Constraint("DistanceX", 6, 3, 7, 3, Q("0.1 in")),
    Sketcher.Constraint("DistanceX", 7, 3, 8, 3, Q("0.1 in")),
    Sketcher.Constraint("DistanceX", 8, 3, 9, 3, Q("0.1 in")),
    Sketcher.Constraint("DistanceX", 9, 3, 10, 3, Q("0.1 in")),
    Sketcher.Constraint("DistanceX", 10, 3, 11, 3, Q("0.1 in")),
    Sketcher.Constraint("DistanceX", 11, 3, 12, 3, Q("0.1 in")),
    Sketcher.Constraint("DistanceX", 12, 3, 13, 3, Q("0.1 in")),
    Sketcher.Constraint("DistanceX", 13, 3, 14, 3, Q("0.1 in")),
    Sketcher.Constraint("DistanceX", 14, 3, 15, 3, Q("0.1 in")),
    Sketcher.Constraint("DistanceX", 15, 3, 16, 3, Q("0.1 in")),
    Sketcher.Constraint("DistanceX", 16, 3, 17, 3, Q("0.1 in")),
    Sketcher.Constraint("DistanceX", 17, 3, 18, 3, Q("0.1 in")),
    Sketcher.Constraint("DistanceY", 19, 3, 18, 3, Q("0.9 in")),
    Sketcher.Constraint("DistanceY", -1, 1, 0, 3, Q("0.08 in")),
    Sketcher.Constraint("DistanceY", -1, 1, 1, 3, Q("0.92 in")),
    Sketcher.Constraint("DistanceY", -1, 1, 4, 3, Q("0.95 in")),
    Sketcher.Constraint("DistanceX", 34, 2, 4, 3, Q("0.13 in")),
    Sketcher.Constraint("DistanceX", 1, 3, 2, 3, Q("1.783 in")),
    Sketcher.Constraint("Diameter", 0, 4.500016),
    Sketcher.Constraint("DistanceX", -1, 1, 0, 3, 7.559802),
    Sketcher.Constraint("DistanceX", -1, 1, 4, 3, 13.680796),
])
pocket1 = body.newObject("PartDesign::Pocket", "Pocket")
pocket1.Profile = sketch4
pocket1.Length = 0.03

# Sketch on XY plane
sketch5 = body.newObject("Sketcher::SketchObject", "Sketch004")
sketch5.AttachmentSupport = (doc.getObject("XY_Plane"), [""])
sketch5.MapMode = "FlatFace"
sketch5.AttachmentOffset = App.Placement(V(0, 0, -1.17), App.Rotation())
sketch5.addGeometry([
    Part.Circle(V(7.559802, 23.368, 0), V(0, 0, 1), 2.250008),  # 0
    Part.Circle(V(13.680796, 24.13, 0), V(0, 0, 1), 0.762),  # 1
    Part.Circle(V(7.559802, 2.032, 0), V(0, 0, 1), 2.250008),  # 2
    Part.Circle(V(13.680796, 1.27, 0), V(0, 0, 1), 0.762),  # 3
    Part.Circle(V(52.848002, 2.032, 0), V(0, 0, 1), 2.250008),  # 4
    Part.Circle(V(49.240796, 1.27, 0), V(0, 0, 1), 0.762),  # 5
    Part.Circle(V(46.700796, 1.27, 0), V(0, 0, 1), 0.762),  # 6
    Part.Circle(V(44.160796, 1.27, 0), V(0, 0, 1), 0.762),  # 7
    Part.Circle(V(41.620796, 1.27, 0), V(0, 0, 1), 0.762),  # 8
    Part.Circle(V(39.080796, 1.27, 0), V(0, 0, 1), 0.762),  # 9
    Part.Circle(V(36.540796, 1.27, 0), V(0, 0, 1), 0.762),  # 10
    Part.Circle(V(34.000796, 1.27, 0), V(0, 0, 1), 0.762),  # 11
    Part.Circle(V(31.460796, 1.27, 0), V(0, 0, 1), 0.762),  # 12
    Part.Circle(V(28.920796, 1.27, 0), V(0, 0, 1), 0.762),  # 13
    Part.Circle(V(26.380796, 1.27, 0), V(0, 0, 1), 0.762),  # 14
    Part.Circle(V(23.840796, 1.27, 0), V(0, 0, 1), 0.762),  # 15
    Part.Circle(V(21.300796, 1.27, 0), V(0, 0, 1), 0.762),  # 16
    Part.Circle(V(18.760796, 1.27, 0), V(0, 0, 1), 0.762),  # 17
    Part.Circle(V(16.220796, 1.27, 0), V(0, 0, 1), 0.762),  # 18
    Part.Circle(V(52.848002, 23.368, 0), V(0, 0, 1), 2.250008),  # 19
    Part.Circle(V(49.240796, 24.13, 0), V(0, 0, 1), 0.762),  # 20
    Part.Circle(V(46.700796, 24.13, 0), V(0, 0, 1), 0.762),  # 21
    Part.Circle(V(44.160796, 24.13, 0), V(0, 0, 1), 0.762),  # 22
    Part.Circle(V(41.620796, 24.13, 0), V(0, 0, 1), 0.762),  # 23
    Part.Circle(V(39.080796, 24.13, 0), V(0, 0, 1), 0.762),  # 24
    Part.Circle(V(36.540796, 24.13, 0), V(0, 0, 1), 0.762),  # 25
    Part.Circle(V(34.000796, 24.13, 0), V(0, 0, 1), 0.762),  # 26
    Part.Circle(V(16.220796, 24.13, 0), V(0, 0, 1), 0.762),  # 27
    Part.Circle(V(18.760796, 24.13, 0), V(0, 0, 1), 0.762),  # 28
    Part.Circle(V(21.300796, 24.13, 0), V(0, 0, 1), 0.762),  # 29
    Part.Circle(V(23.840796, 24.13, 0), V(0, 0, 1), 0.762),  # 30
    Part.Circle(V(26.380796, 24.13, 0), V(0, 0, 1), 0.762),  # 31
    Part.Circle(V(28.920796, 24.13, 0), V(0, 0, 1), 0.762),  # 32
    Part.Circle(V(31.460796, 24.13, 0), V(0, 0, 1), 0.762),  # 33
    Part.LineSegment(V(10.378796, 24.892, 0), V(10.378796, 23.368, 0)),  # 34
    Part.LineSegment(V(10.378796, 23.368, 0), V(11.902796, 23.368, 0)),  # 35
    Part.LineSegment(V(11.902796, 23.368, 0), V(11.902796, 24.892, 0)),  # 36
    Part.LineSegment(V(11.902796, 24.892, 0), V(10.378796, 24.892, 0)),  # 37
    Part.LineSegment(V(10.378796, 2.032, 0), V(10.378796, 0.508, 0)),  # 38
    Part.LineSegment(V(10.378796, 0.508, 0), V(11.902796, 0.508, 0)),  # 39
    Part.LineSegment(V(11.902796, 0.508, 0), V(11.902796, 2.032, 0)),  # 40
    Part.LineSegment(V(11.902796, 2.032, 0), V(10.378796, 2.032, 0)),  # 41
], False)
sketch5.addConstraint([
    Sketcher.Constraint("Coincident", 34, 2, 35, 1),
    Sketcher.Constraint("Coincident", 35, 2, 36, 1),
    Sketcher.Constraint("Coincident", 36, 2, 37, 1),
    Sketcher.Constraint("Coincident", 37, 2, 34, 1),
    Sketcher.Constraint("Coincident", 38, 2, 39, 1),
    Sketcher.Constraint("Coincident", 39, 2, 40, 1),
    Sketcher.Constraint("Coincident", 40, 2, 41, 1),
    Sketcher.Constraint("Coincident", 41, 2, 38, 1),
    Sketcher.Constraint("Vertical", 34),
    Sketcher.Constraint("Horizontal", 35),
    Sketcher.Constraint("Vertical", 36),
    Sketcher.Constraint("Horizontal", 37),
    Sketcher.Constraint("Vertical", 38),
    Sketcher.Constraint("Horizontal", 39),
    Sketcher.Constraint("Vertical", 40),
    Sketcher.Constraint("Horizontal", 41),
    Sketcher.Constraint("Equal", 0, 2),
    Sketcher.Constraint("Equal", 1, 3),
    Sketcher.Constraint("Equal", 2, 4),
    Sketcher.Constraint("Equal", 3, 5),
    Sketcher.Constraint("Equal", 5, 6),
    Sketcher.Constraint("Equal", 6, 7),
    Sketcher.Constraint("Equal", 7, 8),
    Sketcher.Constraint("Equal", 8, 9),
    Sketcher.Constraint("Equal", 9, 10),
    Sketcher.Constraint("Equal", 10, 11),
    Sketcher.Constraint("Equal", 11, 12),
    Sketcher.Constraint("Equal", 12, 13),
    Sketcher.Constraint("Equal", 13, 14),
    Sketcher.Constraint("Equal", 14, 15),
    Sketcher.Constraint("Equal", 15, 16),
    Sketcher.Constraint("Equal", 16, 17),
    Sketcher.Constraint("Equal", 17, 18),
    Sketcher.Constraint("Equal", 4, 19),
    Sketcher.Constraint("Equal", 18, 20),
    Sketcher.Constraint("Equal", 20, 21),
    Sketcher.Constraint("Equal", 21, 22),
    Sketcher.Constraint("Equal", 22, 23),
    Sketcher.Constraint("Equal", 23, 24),
    Sketcher.Constraint("Equal", 24, 25),
    Sketcher.Constraint("Equal", 25, 26),
    Sketcher.Constraint("Equal", 26, 27),
    Sketcher.Constraint("Equal", 27, 28),
    Sketcher.Constraint("Equal", 28, 29),
    Sketcher.Constraint("Equal", 29, 30),
    Sketcher.Constraint("Equal", 30, 31),
    Sketcher.Constraint("Equal", 31, 32),
    Sketcher.Constraint("Equal", 32, 33),
    Sketcher.Constraint("Horizontal", 2, 3, 4, 3),
    Sketcher.Constraint("Horizontal", 3, 3, 5, 3),
    Sketcher.Constraint("Horizontal", 5, 3, 6, 3),
    Sketcher.Constraint("Horizontal", 6, 3, 7, 3),
    Sketcher.Constraint("Horizontal", 7, 3, 8, 3),
    Sketcher.Constraint("Horizontal", 8, 3, 9, 3),
    Sketcher.Constraint("Horizontal", 9, 3, 10, 3),
    Sketcher.Constraint("Horizontal", 10, 3, 11, 3),
    Sketcher.Constraint("Horizontal", 11, 3, 12, 3),
    Sketcher.Constraint("Horizontal", 12, 3, 13, 3),
    Sketcher.Constraint("Horizontal", 13, 3, 14, 3),
    Sketcher.Constraint("Horizontal", 14, 3, 15, 3),
    Sketcher.Constraint("Horizontal", 15, 3, 16, 3),
    Sketcher.Constraint("Horizontal", 16, 3, 17, 3),
    Sketcher.Constraint("Horizontal", 17, 3, 18, 3),
    Sketcher.Constraint("Horizontal", 0, 3, 19, 3),
    Sketcher.Constraint("Horizontal", 1, 3, 20, 3),
    Sketcher.Constraint("Horizontal", 20, 3, 21, 3),
    Sketcher.Constraint("Horizontal", 21, 3, 22, 3),
    Sketcher.Constraint("Horizontal", 22, 3, 23, 3),
    Sketcher.Constraint("Horizontal", 23, 3, 24, 3),
    Sketcher.Constraint("Horizontal", 24, 3, 25, 3),
    Sketcher.Constraint("Horizontal", 25, 3, 26, 3),
    Sketcher.Constraint("Horizontal", 26, 3, 27, 3),
    Sketcher.Constraint("Horizontal", 27, 3, 28, 3),
    Sketcher.Constraint("Horizontal", 28, 3, 29, 3),
    Sketcher.Constraint("Horizontal", 29, 3, 30, 3),
    Sketcher.Constraint("Horizontal", 30, 3, 31, 3),
    Sketcher.Constraint("Horizontal", 31, 3, 32, 3),
    Sketcher.Constraint("Horizontal", 32, 3, 33, 3),
    Sketcher.Constraint("Horizontal", 19, 3, 34, 2),
    Sketcher.Constraint("Horizontal", 4, 3, 40, 2),
    Sketcher.Constraint("Vertical", 0, 3, 2, 3),
    Sketcher.Constraint("Vertical", 1, 3, 3, 3),
    Sketcher.Constraint("Vertical", 4, 3, 19, 3),
    Sketcher.Constraint("Vertical", 5, 3, 20, 3),
    Sketcher.Constraint("Vertical", 6, 3, 21, 3),
    Sketcher.Constraint("Vertical", 7, 3, 22, 3),
    Sketcher.Constraint("Vertical", 8, 3, 23, 3),
    Sketcher.Constraint("Vertical", 9, 3, 24, 3),
    Sketcher.Constraint("Vertical", 10, 3, 25, 3),
    Sketcher.Constraint("Vertical", 11, 3, 26, 3),
    Sketcher.Constraint("Vertical", 18, 3, 27, 3),
    Sketcher.Constraint("Vertical", 17, 3, 28, 3),
    Sketcher.Constraint("Vertical", 16, 3, 29, 3),
    Sketcher.Constraint("Vertical", 15, 3, 30, 3),
    Sketcher.Constraint("Vertical", 14, 3, 31, 3),
    Sketcher.Constraint("Vertical", 13, 3, 32, 3),
    Sketcher.Constraint("Vertical", 12, 3, 33, 3),
    Sketcher.Constraint("Vertical", 37, 2, 38, 2),
    Sketcher.Constraint("Vertical", 36, 2, 39, 2),
    Sketcher.Constraint("Equal", 41, 34),
    Sketcher.Constraint("Equal", 36, 38),
    Sketcher.Constraint("Diameter", 1, Q("0.06 in")),
    Sketcher.Constraint("DistanceX", 35, 1, 35, 2, Q("0.06 in")),
    Sketcher.Constraint("DistanceY", 3, 3, 1, 3, Q("0.9 in")),
    Sketcher.Constraint("DistanceX", 3, 3, 5, 3, Q("1.4 in")),
    Sketcher.Constraint("DistanceX", 6, 3, 5, 3, Q("0.1 in")),
    Sketcher.Constraint("DistanceX", 7, 3, 6, 3, Q("0.1 in")),
    Sketcher.Constraint("DistanceX", 8, 3, 7, 3, Q("0.1 in")),
    Sketcher.Constraint("DistanceX", 9, 3, 8, 3, Q("0.1 in")),
    Sketcher.Constraint("DistanceX", 10, 3, 9, 3, Q("0.1 in")),
    Sketcher.Constraint("DistanceX", 11, 3, 10, 3, Q("0.1 in")),
    Sketcher.Constraint("DistanceX", 12, 3, 11, 3, Q("0.1 in")),
    Sketcher.Constraint("DistanceX", 13, 3, 12, 3, Q("0.1 in")),
    Sketcher.Constraint("DistanceX", 14, 3, 13, 3, Q("0.1 in")),
    Sketcher.Constraint("DistanceX", 15, 3, 14, 3, Q("0.1 in")),
    Sketcher.Constraint("DistanceX", 16, 3, 15, 3, Q("0.1 in")),
    Sketcher.Constraint("DistanceX", 17, 3, 16, 3, Q("0.1 in")),
    Sketcher.Constraint("DistanceX", 3, 3, 18, 3, Q("0.1 in")),
    Sketcher.Constraint("DistanceY", -1, 1, 0, 3, Q("0.92 in")),
    Sketcher.Constraint("DistanceY", -1, 1, 1, 3, Q("0.95 in")),
    Sketcher.Constraint("DistanceY", -1, 1, 2, 3, Q("0.08 in")),
    Sketcher.Constraint("DistanceX", 34, 2, 1, 3, Q("0.13 in")),
    Sketcher.Constraint("DistanceX", 2, 3, 4, 3, Q("1.783 in")),
    Sketcher.Constraint("Diameter", 0, 4.500016),
    Sketcher.Constraint("DistanceX", -1, 1, 0, 3, 7.559802),
    Sketcher.Constraint("DistanceX", -1, 1, 1, 3, 13.680796),
])
pocket2 = body.newObject("PartDesign::Pocket", "Pocket001")
pocket2.Profile = sketch5
pocket2.Length = 0.03

doc.recompute()
